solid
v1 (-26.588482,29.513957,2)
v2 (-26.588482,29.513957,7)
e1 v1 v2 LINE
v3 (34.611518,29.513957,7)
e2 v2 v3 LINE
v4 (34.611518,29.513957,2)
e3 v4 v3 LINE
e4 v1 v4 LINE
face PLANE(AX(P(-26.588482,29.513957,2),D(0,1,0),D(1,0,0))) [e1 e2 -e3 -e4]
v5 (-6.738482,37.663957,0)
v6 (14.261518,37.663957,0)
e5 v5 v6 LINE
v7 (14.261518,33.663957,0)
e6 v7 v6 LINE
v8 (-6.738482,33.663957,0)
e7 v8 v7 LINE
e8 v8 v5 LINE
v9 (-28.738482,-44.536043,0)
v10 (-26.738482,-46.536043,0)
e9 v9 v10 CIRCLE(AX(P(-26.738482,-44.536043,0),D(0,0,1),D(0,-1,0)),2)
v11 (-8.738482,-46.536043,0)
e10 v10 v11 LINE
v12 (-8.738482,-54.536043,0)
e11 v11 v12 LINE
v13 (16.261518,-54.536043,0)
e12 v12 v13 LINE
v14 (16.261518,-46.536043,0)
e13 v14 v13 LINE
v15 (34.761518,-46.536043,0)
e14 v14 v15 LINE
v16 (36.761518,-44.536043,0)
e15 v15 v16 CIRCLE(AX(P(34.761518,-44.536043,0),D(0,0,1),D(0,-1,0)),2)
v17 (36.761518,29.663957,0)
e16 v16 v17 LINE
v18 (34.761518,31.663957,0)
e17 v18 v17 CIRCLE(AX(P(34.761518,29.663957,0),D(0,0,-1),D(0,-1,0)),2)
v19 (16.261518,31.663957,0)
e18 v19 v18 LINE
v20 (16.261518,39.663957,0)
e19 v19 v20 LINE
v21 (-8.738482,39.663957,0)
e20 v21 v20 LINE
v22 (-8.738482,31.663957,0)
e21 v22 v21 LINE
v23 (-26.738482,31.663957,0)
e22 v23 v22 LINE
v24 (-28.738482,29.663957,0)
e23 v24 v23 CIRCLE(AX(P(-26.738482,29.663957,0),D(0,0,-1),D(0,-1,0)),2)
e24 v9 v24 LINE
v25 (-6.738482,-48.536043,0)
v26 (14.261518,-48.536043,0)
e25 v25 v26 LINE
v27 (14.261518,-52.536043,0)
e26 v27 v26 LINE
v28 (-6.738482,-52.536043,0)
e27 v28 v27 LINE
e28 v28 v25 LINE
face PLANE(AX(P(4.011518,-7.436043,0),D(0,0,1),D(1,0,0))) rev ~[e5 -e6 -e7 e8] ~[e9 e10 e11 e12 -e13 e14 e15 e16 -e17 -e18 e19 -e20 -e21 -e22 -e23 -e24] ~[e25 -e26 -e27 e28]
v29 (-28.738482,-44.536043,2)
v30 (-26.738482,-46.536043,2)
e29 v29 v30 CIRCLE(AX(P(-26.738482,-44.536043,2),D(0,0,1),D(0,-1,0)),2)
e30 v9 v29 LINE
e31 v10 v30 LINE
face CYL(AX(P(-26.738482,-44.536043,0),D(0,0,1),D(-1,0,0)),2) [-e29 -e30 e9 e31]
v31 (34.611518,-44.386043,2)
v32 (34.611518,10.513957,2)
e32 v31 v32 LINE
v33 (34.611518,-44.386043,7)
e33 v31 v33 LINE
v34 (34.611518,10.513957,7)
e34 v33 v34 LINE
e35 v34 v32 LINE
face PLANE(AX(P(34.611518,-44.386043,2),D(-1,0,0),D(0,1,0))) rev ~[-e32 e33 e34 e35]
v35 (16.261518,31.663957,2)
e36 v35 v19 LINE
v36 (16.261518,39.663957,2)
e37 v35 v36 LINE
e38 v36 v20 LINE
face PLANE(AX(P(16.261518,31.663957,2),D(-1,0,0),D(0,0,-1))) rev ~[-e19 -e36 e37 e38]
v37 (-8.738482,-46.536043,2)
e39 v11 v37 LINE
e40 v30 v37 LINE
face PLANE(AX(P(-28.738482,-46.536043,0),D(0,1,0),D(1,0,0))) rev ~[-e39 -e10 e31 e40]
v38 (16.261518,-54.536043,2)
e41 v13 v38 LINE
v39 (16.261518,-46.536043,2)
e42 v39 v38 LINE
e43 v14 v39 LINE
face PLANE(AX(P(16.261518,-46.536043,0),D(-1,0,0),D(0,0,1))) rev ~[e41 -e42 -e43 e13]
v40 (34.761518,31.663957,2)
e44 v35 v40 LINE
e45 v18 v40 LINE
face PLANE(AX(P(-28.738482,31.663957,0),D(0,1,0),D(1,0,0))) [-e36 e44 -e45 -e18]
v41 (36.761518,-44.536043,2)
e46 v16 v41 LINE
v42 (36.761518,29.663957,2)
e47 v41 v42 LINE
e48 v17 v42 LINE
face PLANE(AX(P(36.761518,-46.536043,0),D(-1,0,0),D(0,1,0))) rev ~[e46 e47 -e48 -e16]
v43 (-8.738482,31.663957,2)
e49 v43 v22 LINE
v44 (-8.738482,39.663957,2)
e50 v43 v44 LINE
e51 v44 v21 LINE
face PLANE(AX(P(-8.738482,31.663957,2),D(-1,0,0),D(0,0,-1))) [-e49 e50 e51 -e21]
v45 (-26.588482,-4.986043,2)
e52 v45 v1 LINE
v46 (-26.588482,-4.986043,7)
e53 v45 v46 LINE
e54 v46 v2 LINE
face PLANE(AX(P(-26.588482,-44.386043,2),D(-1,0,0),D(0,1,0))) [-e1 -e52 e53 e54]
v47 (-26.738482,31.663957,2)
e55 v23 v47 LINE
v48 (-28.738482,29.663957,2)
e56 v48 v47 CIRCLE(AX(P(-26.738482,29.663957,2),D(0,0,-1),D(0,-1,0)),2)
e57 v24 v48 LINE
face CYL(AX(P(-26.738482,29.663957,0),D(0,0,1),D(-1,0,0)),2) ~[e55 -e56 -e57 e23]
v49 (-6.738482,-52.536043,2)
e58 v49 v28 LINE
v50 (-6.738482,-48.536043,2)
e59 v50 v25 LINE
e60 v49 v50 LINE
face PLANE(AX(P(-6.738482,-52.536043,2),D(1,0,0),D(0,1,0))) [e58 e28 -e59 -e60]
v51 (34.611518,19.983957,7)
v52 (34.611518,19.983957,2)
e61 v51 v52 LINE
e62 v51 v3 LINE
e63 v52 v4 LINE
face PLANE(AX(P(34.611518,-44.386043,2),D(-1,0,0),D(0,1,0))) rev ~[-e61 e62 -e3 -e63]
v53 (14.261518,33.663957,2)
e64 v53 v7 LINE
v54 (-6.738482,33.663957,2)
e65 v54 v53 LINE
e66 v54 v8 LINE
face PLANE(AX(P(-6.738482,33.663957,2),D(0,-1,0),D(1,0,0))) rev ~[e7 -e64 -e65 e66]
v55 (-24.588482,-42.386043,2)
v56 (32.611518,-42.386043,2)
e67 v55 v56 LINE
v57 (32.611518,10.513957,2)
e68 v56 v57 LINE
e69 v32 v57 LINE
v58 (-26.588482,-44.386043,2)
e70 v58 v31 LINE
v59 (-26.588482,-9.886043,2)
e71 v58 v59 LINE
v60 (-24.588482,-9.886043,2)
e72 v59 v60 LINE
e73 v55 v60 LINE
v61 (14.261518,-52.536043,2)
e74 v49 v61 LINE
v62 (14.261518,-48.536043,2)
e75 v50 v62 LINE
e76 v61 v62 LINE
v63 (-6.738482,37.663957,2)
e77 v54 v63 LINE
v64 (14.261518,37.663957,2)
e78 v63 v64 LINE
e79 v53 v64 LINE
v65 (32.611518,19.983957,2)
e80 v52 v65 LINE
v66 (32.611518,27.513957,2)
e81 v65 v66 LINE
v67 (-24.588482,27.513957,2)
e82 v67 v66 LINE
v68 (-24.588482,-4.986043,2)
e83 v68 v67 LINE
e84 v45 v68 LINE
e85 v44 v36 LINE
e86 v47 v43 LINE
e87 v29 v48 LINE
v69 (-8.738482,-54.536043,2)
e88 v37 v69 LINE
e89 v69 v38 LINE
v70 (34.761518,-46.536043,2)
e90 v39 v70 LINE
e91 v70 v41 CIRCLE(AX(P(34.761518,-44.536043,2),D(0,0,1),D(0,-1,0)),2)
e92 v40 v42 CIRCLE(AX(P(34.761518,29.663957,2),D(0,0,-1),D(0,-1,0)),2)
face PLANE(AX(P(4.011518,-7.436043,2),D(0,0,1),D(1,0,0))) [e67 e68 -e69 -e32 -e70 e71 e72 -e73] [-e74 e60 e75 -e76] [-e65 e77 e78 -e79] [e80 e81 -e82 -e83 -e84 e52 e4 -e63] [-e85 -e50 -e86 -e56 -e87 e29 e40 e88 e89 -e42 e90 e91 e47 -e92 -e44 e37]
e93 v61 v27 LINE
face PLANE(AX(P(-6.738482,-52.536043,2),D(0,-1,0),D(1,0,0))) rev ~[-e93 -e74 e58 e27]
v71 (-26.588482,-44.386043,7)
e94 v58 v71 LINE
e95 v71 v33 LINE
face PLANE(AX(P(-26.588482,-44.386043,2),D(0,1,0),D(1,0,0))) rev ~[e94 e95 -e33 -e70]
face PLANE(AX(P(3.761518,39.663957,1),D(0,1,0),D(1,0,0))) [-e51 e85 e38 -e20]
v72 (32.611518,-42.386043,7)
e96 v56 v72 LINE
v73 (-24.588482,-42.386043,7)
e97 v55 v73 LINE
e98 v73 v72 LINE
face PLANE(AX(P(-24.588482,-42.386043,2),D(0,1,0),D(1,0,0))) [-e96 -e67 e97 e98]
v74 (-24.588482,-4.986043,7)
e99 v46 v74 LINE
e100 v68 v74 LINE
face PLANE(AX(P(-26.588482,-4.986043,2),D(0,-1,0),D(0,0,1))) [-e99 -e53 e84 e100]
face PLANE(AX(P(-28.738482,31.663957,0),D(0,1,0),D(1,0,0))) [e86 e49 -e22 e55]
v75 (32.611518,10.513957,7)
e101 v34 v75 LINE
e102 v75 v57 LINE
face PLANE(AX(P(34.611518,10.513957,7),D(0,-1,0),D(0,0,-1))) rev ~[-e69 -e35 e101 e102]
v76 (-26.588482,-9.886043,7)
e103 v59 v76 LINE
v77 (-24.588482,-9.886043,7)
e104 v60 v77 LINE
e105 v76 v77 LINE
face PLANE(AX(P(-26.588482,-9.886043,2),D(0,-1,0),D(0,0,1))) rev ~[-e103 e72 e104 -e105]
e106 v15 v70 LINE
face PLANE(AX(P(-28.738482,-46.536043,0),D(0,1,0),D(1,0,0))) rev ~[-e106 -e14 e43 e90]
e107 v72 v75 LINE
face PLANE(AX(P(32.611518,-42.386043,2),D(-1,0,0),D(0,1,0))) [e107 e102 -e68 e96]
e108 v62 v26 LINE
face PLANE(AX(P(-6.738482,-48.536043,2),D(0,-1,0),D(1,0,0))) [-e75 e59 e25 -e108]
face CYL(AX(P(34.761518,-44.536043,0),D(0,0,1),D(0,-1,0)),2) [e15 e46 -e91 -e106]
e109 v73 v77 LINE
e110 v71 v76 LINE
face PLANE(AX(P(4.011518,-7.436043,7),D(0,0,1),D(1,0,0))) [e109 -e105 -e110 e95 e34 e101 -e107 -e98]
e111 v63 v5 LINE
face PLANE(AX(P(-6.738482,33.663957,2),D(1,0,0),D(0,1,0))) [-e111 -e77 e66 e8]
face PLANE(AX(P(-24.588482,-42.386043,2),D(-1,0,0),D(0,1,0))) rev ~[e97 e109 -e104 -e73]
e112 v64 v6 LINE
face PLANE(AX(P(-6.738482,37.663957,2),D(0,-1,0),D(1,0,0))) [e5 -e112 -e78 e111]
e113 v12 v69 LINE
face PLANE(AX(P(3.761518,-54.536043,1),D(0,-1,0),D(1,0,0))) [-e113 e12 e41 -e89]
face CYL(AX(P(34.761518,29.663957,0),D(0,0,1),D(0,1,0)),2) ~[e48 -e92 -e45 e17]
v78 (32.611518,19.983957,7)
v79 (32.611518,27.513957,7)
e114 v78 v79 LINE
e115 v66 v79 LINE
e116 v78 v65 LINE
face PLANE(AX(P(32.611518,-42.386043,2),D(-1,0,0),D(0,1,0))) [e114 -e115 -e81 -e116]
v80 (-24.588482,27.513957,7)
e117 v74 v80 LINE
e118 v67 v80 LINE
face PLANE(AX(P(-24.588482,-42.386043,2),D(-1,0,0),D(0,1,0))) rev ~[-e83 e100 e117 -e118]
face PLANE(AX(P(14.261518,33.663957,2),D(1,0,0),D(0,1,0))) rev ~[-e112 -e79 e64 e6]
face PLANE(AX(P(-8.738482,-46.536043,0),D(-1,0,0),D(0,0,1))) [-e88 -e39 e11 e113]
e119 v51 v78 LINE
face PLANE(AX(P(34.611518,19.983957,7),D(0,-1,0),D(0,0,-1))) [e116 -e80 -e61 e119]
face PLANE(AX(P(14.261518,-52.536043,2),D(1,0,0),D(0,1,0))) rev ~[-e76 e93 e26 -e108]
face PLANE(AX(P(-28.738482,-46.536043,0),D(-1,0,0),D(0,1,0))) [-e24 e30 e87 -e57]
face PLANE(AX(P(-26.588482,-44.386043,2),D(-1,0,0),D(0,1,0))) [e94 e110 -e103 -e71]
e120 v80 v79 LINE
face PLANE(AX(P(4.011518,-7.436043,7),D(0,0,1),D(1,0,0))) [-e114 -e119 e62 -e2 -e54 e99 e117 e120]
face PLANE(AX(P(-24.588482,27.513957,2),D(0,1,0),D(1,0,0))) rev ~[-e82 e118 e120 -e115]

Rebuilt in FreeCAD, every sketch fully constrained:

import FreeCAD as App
import Part
import Sketcher
from FreeCAD import Vector
Q = App.Units.Quantity


def edges_at(feature, points):
    """Names of the edges that pass closest to the given points."""
    edges = feature.Shape.Edges
    near = lambda p: min(range(len(edges)), key=lambda i: edges[i].distToShape(Part.Vertex(*p))[0])
    return sorted({f"Edge{near(p) + 1}" for p in points})

doc = App.newDocument("Part")
params = doc.addObject("Spreadsheet::Sheet", "Params")
for row, (alias, value) in enumerate([
    ("sketch1_width", "65.5 mm"),
    ("sketch1_height", "78.2 mm"),
    ("pad1_length", "2 mm"),
    ("sketch2_width", "61.2 mm"),
    ("sketch2_width2", "57.2 mm"),
    ("sketch2_height", "73.9 mm"),
    ("sketch2_height2", "69.9 mm"),
    ("pad2_length", "5 mm"),
    ("sketch3_height", "5 mm"),
    ("sketch3_width", "9.47 mm"),
    ("pocket1_length", "2 mm"),
    ("sketch4_height", "5 mm"),
    ("sketch4_width", "4.9 mm"),
    ("pocket2_length", "2 mm"),
    ("fillet_radius", "2 mm"),
    ("sketch5_width", "25 mm"),
    ("sketch5_height", "2 mm"),
    ("pad3_length", "8 mm"),
    ("sketch6_width", "25 mm"),
    ("sketch6_height", "2 mm"),
    ("pad4_length", "8 mm"),
    ("sketch7_width", "21 mm"),
    ("sketch7_height", "4 mm"),
], start=1):
    params.set(f"A{row}", alias)
    params.set(f"B{row}", "=" + value)
    params.setAlias(f"B{row}", alias)

body = doc.addObject("PartDesign::Body", "Body")

sketch1 = body.newObject("Sketcher::SketchObject", "Sketch")
sketch1.AttachmentSupport = (doc.getObject("XY_Plane"), [""])
sketch1.MapMode = "FlatFace"
sketch1.addGeometry(Part.LineSegment(Vector(-29, 32, 0), Vector(-29, -47, 0)), False)
sketch1.addGeometry(Part.LineSegment(Vector(-29, -47, 0), Vector(37, -47, 0)), False)
sketch1.addGeometry(Part.LineSegment(Vector(37, -47, 0), Vector(37, 32, 0)), False)
sketch1.addGeometry(Part.LineSegment(Vector(37, 32, 0), Vector(-29, 32, 0)), False)
sketch1.addConstraint(Sketcher.Constraint("Coincident", 0, 2, 1, 1))
sketch1.addConstraint(Sketcher.Constraint("Coincident", 1, 2, 2, 1))
sketch1.addConstraint(Sketcher.Constraint("Coincident", 2, 2, 3, 1))
sketch1.addConstraint(Sketcher.Constraint("Coincident", 3, 2, 0, 1))
sketch1.addConstraint(Sketcher.Constraint("Vertical", 0))
sketch1.addConstraint(Sketcher.Constraint("Horizontal", 1))
sketch1.addConstraint(Sketcher.Constraint("Vertical", 2))
sketch1.addConstraint(Sketcher.Constraint("Horizontal", 3))
sketch1.addConstraint(Sketcher.Constraint("DistanceX", 1, 1, 1, 2, Q("65.5 mm")))
sketch1.addConstraint(Sketcher.Constraint("DistanceY", 0, 2, 0, 1, Q("78.2 mm")))
sketch1.addConstraint(Sketcher.Constraint("DistanceX", 0, 2, -1, 1, Q("28.738482 mm")))
sketch1.addConstraint(Sketcher.Constraint("DistanceY", 0, 2, -1, 1, Q("46.536043 mm")))
sketch1.setExpression("Constraints[8]", "Params.sketch1_width")
sketch1.setExpression("Constraints[9]", "Params.sketch1_height")
pad1 = body.newObject("PartDesign::Pad", "Pad")
pad1.Profile = sketch1
pad1.setExpression("Length", "Params.pad1_length")

sketch2 = body.newObject("Sketcher::SketchObject", "Sketch001")
sketch2.AttachmentSupport = (doc.getObject("XY_Plane"), [""])
sketch2.MapMode = "FlatFace"
sketch2.AttachmentOffset = App.Placement(Vector(0, 0, 2), App.Rotation())
sketch2.addGeometry(Part.LineSegment(Vector(-27, 30, 0), Vector(-27, -44, 0)), False)
sketch2.addGeometry(Part.LineSegment(Vector(-27, -44, 0), Vector(35, -44, 0)), False)
sketch2.addGeometry(Part.LineSegment(Vector(35, -44, 0), Vector(35, 30, 0)), False)
sketch2.addGeometry(Part.LineSegment(Vector(35, 30, 0), Vector(-27, 30, 0)), False)
sketch2.addGeometry(Part.LineSegment(Vector(33, -42, 0), Vector(-25, -42, 0)), False)
sketch2.addGeometry(Part.LineSegment(Vector(-25, -42, 0), Vector(-25, 28, 0)), False)
sketch2.addGeometry(Part.LineSegment(Vector(-25, 28, 0), Vector(33, 28, 0)), False)
sketch2.addGeometry(Part.LineSegment(Vector(33, 28, 0), Vector(33, -42, 0)), False)
sketch2.addConstraint(Sketcher.Constraint("Coincident", 0, 2, 1, 1))
sketch2.addConstraint(Sketcher.Constraint("Coincident", 1, 2, 2, 1))
sketch2.addConstraint(Sketcher.Constraint("Coincident", 2, 2, 3, 1))
sketch2.addConstraint(Sketcher.Constraint("Coincident", 3, 2, 0, 1))
sketch2.addConstraint(Sketcher.Constraint("Coincident", 4, 2, 5, 1))
sketch2.addConstraint(Sketcher.Constraint("Coincident", 5, 2, 6, 1))
sketch2.addConstraint(Sketcher.Constraint("Coincident", 6, 2, 7, 1))
sketch2.addConstraint(Sketcher.Constraint("Coincident", 7, 2, 4, 1))
sketch2.addConstraint(Sketcher.Constraint("Vertical", 0))
sketch2.addConstraint(Sketcher.Constraint("Horizontal", 1))
sketch2.addConstraint(Sketcher.Constraint("Vertical", 2))
sketch2.addConstraint(Sketcher.Constraint("Horizontal", 3))
sketch2.addConstraint(Sketcher.Constraint("Horizontal", 4))
sketch2.addConstraint(Sketcher.Constraint("Vertical", 5))
sketch2.addConstraint(Sketcher.Constraint("Horizontal", 6))
sketch2.addConstraint(Sketcher.Constraint("Vertical", 7))
sketch2.addConstraint(Sketcher.Constraint("DistanceX", 1, 1, 1, 2, Q("61.2 mm")))
sketch2.addConstraint(Sketcher.Constraint("DistanceX", 4, 2, 4, 1, Q("57.2 mm")))
sketch2.addConstraint(Sketcher.Constraint("DistanceY", 0, 2, 0, 1, Q("73.9 mm")))
sketch2.addConstraint(Sketcher.Constraint("DistanceY", 5, 1, 5, 2, Q("69.9 mm")))
sketch2.addConstraint(Sketcher.Constraint("DistanceX", 0, 2, 4, 2, Q("2 mm")))
sketch2.addConstraint(Sketcher.Constraint("DistanceY", 0, 2, 4, 2, Q("2 mm")))
sketch2.addConstraint(Sketcher.Constraint("DistanceX", 0, 2, -1, 1, Q("26.588482 mm")))
sketch2.addConstraint(Sketcher.Constraint("DistanceY", 0, 2, -1, 1, Q("44.386043 mm")))
sketch2.setExpression("Constraints[16]", "Params.sketch2_width")
sketch2.setExpression("Constraints[17]", "Params.sketch2_width2")
sketch2.setExpression("Constraints[18]", "Params.sketch2_height")
sketch2.setExpression("Constraints[19]", "Params.sketch2_height2")
pad2 = body.newObject("PartDesign::Pad", "Pad001")
pad2.Profile = sketch2
pad2.setExpression("Length", "Params.pad2_length")

sketch3 = body.newObject("Sketcher::SketchObject", "Sketch002")
sketch3.AttachmentSupport = (doc.getObject("YZ_Plane"), [""])
sketch3.MapMode = "FlatFace"
sketch3.AttachmentOffset = App.Placement(Vector(0, 0, 34.611518), App.Rotation())
sketch3.addGeometry(Part.LineSegment(Vector(20, 7, 0), Vector(11, 7, 0)), False)
sketch3.addGeometry(Part.LineSegment(Vector(11, 7, 0), Vector(11, 2, 0)), False)
sketch3.addGeometry(Part.LineSegment(Vector(11, 2, 0), Vector(20, 2, 0)), False)
sketch3.addGeometry(Part.LineSegment(Vector(20, 2, 0), Vector(20, 7, 0)), False)
sketch3.addConstraint(Sketcher.Constraint("Coincident", 0, 2, 1, 1))
sketch3.addConstraint(Sketcher.Constraint("Coincident", 1, 2, 2, 1))
sketch3.addConstraint(Sketcher.Constraint("Coincident", 2, 2, 3, 1))
sketch3.addConstraint(Sketcher.Constraint("Coincident", 3, 2, 0, 1))
sketch3.addConstraint(Sketcher.Constraint("Horizontal", 0))
sketch3.addConstraint(Sketcher.Constraint("Vertical", 1))
sketch3.addConstraint(Sketcher.Constraint("Horizontal", 2))
sketch3.addConstraint(Sketcher.Constraint("Vertical", 3))
sketch3.addConstraint(Sketcher.Constraint("DistanceY", 1, 2, 1, 1, Q("5 mm")))
sketch3.addConstraint(Sketcher.Constraint("DistanceY", -1, 1, 0, 2, Q("7 mm")))
sketch3.addConstraint(Sketcher.Constraint("DistanceX", 0, 2, 0, 1, Q("9.47 mm")))
sketch3.addConstraint(Sketcher.Constraint("DistanceX", -1, 1, 0, 2, Q("10.513957 mm")))
sketch3.setExpression("Constraints[8]", "Params.sketch3_height")
sketch3.setExpression("Constraints[10]", "Params.sketch3_width")
pocket1 = body.newObject("PartDesign::Pocket", "Pocket")
pocket1.Profile = sketch3
pocket1.setExpression("Length", "Params.pocket1_length")

sketch4 = body.newObject("Sketcher::SketchObject", "Sketch003")
sketch4.AttachmentSupport = (doc.getObject("YZ_Plane"), [""])
sketch4.MapMode = "FlatFace"
sketch4.AttachmentOffset = App.Placement(Vector(0, 0, -26.588482), App.Rotation())
sketch4.addGeometry(Part.LineSegment(Vector(-5, 2, 0), Vector(-9.9, 2, 0)), False)
sketch4.addGeometry(Part.LineSegment(Vector(-9.9, 2, 0), Vector(-9.9, 7, 0)), False)
sketch4.addGeometry(Part.LineSegment(Vector(-9.9, 7, 0), Vector(-5, 7, 0)), False)
sketch4.addGeometry(Part.LineSegment(Vector(-5, 7, 0), Vector(-5, 2, 0)), False)
sketch4.addConstraint(Sketcher.Constraint("Coincident", 0, 2, 1, 1))
sketch4.addConstraint(Sketcher.Constraint("Coincident", 1, 2, 2, 1))
sketch4.addConstraint(Sketcher.Constraint("Coincident", 2, 2, 3, 1))
sketch4.addConstraint(Sketcher.Constraint("Coincident", 3, 2, 0, 1))
sketch4.addConstraint(Sketcher.Constraint("Horizontal", 0))
sketch4.addConstraint(Sketcher.Constraint("Vertical", 1))
sketch4.addConstraint(Sketcher.Constraint("Horizontal", 2))
sketch4.addConstraint(Sketcher.Constraint("Vertical", 3))
sketch4.addConstraint(Sketcher.Constraint("DistanceY", 1, 1, 1, 2, Q("5 mm")))
sketch4.addConstraint(Sketcher.Constraint("DistanceX", 0, 2, 0, 1, Q("4.9 mm")))
sketch4.addConstraint(Sketcher.Constraint("DistanceY", -1, 1, 0, 2, Q("2 mm")))
sketch4.addConstraint(Sketcher.Constraint("DistanceX", 0, 2, -1, 1, Q("9.886043 mm")))
sketch4.setExpression("Constraints[8]", "Params.sketch4_height")
sketch4.setExpression("Constraints[9]", "Params.sketch4_width")
pocket2 = body.newObject("PartDesign::Pocket", "Pocket001")
pocket2.Profile = sketch4
pocket2.setExpression("Length", "Params.pocket2_length")
pocket2.Reversed = True
doc.recompute()

fillet = body.newObject("PartDesign::Fillet", "Fillet")
fillet.Base = (pocket2, edges_at(pocket2, [
    (-28.738, 31.664, 1),
    (36.762, 31.664, 1),
    (36.762, -46.536, 1),
    (-28.738, -46.536, 1),
]))
fillet.setExpression("Radius", "Params.fillet_radius")

sketch5 = body.newObject("Sketcher::SketchObject", "Sketch004")
sketch5.AttachmentSupport = (doc.getObject("XZ_Plane"), [""])
sketch5.MapMode = "FlatFace"
sketch5.AttachmentOffset = App.Placement(Vector(0, 0, -31.663957), App.Rotation())
sketch5.addGeometry(Part.LineSegment(Vector(-8.7, 0, 0), Vector(-8.7, 2, 0)), False)
sketch5.addGeometry(Part.LineSegment(Vector(-8.7, 2, 0), Vector(16.3, 2, 0)), False)
sketch5.addGeometry(Part.LineSegment(Vector(16.3, 2, 0), Vector(16.3, 0, 0)), False)
sketch5.addGeometry(Part.LineSegment(Vector(16.3, 0, 0), Vector(-8.7, 0, 0)), False)
sketch5.addConstraint(Sketcher.Constraint("Coincident", 0, 2, 1, 1))
sketch5.addConstraint(Sketcher.Constraint("Coincident", 1, 2, 2, 1))
sketch5.addConstraint(Sketcher.Constraint("Coincident", 2, 2, 3, 1))
sketch5.addConstraint(Sketcher.Constraint("Coincident", 3, 2, 0, 1))
sketch5.addConstraint(Sketcher.Constraint("Vertical", 0))
sketch5.addConstraint(Sketcher.Constraint("Horizontal", 1))
sketch5.addConstraint(Sketcher.Constraint("Vertical", 2))
sketch5.addConstraint(Sketcher.Constraint("Horizontal", 3))
sketch5.addConstraint(Sketcher.Constraint("PointOnObject", 2, 2, -1))
sketch5.addConstraint(Sketcher.Constraint("DistanceX", 1, 1, 1, 2, Q("25 mm")))
sketch5.addConstraint(Sketcher.Constraint("DistanceY", 0, 1, 0, 2, Q("2 mm")))
sketch5.addConstraint(Sketcher.Constraint("DistanceX", 0, 2, -1, 1, Q("8.738482 mm")))
sketch5.setExpression("Constraints[9]", "Params.sketch5_width")
sketch5.setExpression("Constraints[10]", "Params.sketch5_height")
pad3 = body.newObject("PartDesign::Pad", "Pad002")
pad3.Profile = sketch5
pad3.setExpression("Length", "Params.pad3_length")
pad3.Reversed = True

sketch6 = body.newObject("Sketcher::SketchObject", "Sketch005")
sketch6.AttachmentSupport = (doc.getObject("XZ_Plane"), [""])
sketch6.MapMode = "FlatFace"
sketch6.AttachmentOffset = App.Placement(Vector(0, 0, 46.536043), App.Rotation())
sketch6.addGeometry(Part.LineSegment(Vector(-8.7, 2, 0), Vector(-8.7, 0, 0)), False)
sketch6.addGeometry(Part.LineSegment(Vector(-8.7, 0, 0), Vector(16.3, 0, 0)), False)
sketch6.addGeometry(Part.LineSegment(Vector(16.3, 0, 0), Vector(16.3, 2, 0)), False)
sketch6.addGeometry(Part.LineSegment(Vector(16.3, 2, 0), Vector(-8.7, 2, 0)), False)
sketch6.addConstraint(Sketcher.Constraint("Coincident", 0, 2, 1, 1))
sketch6.addConstraint(Sketcher.Constraint("Coincident", 1, 2, 2, 1))
sketch6.addConstraint(Sketcher.Constraint("Coincident", 2, 2, 3, 1))
sketch6.addConstraint(Sketcher.Constraint("Coincident", 3, 2, 0, 1))
sketch6.addConstraint(Sketcher.Constraint("Vertical", 0))
sketch6.addConstraint(Sketcher.Constraint("Horizontal", 1))
sketch6.addConstraint(Sketcher.Constraint("Vertical", 2))
sketch6.addConstraint(Sketcher.Constraint("Horizontal", 3))
sketch6.addConstraint(Sketcher.Constraint("PointOnObject", 0, 2, -1))
sketch6.addConstraint(Sketcher.Constraint("DistanceX", 1, 1, 1, 2, Q("25 mm")))
sketch6.addConstraint(Sketcher.Constraint("DistanceY", 0, 2, 0, 1, Q("2 mm")))
sketch6.addConstraint(Sketcher.Constraint("DistanceX", 0, 2, -1, 1, Q("8.738482 mm")))
sketch6.setExpression("Constraints[9]", "Params.sketch6_width")
sketch6.setExpression("Constraints[10]", "Params.sketch6_height")
pad4 = body.newObject("PartDesign::Pad", "Pad003")
pad4.Profile = sketch6
pad4.setExpression("Length", "Params.pad4_length")

sketch7 = body.newObject("Sketcher::SketchObject", "Sketch006")
sketch7.AttachmentSupport = (doc.getObject("XY_Plane"), [""])
sketch7.MapMode = "FlatFace"
sketch7.AttachmentOffset = App.Placement(Vector(0, 0, 2), App.Rotation())
sketch7.addGeometry(Part.LineSegment(Vector(-6.7, -48.5, 0), Vector(-6.7, -52.5, 0)), False)
sketch7.addGeometry(Part.LineSegment(Vector(-6.7, -52.5, 0), Vector(14.3, -52.5, 0)), False)
sketch7.addGeometry(Part.LineSegment(Vector(14.3, -52.5, 0), Vector(14.3, -48.5, 0)), False)
sketch7.addGeometry(Part.LineSegment(Vector(14.3, -48.5, 0), Vector(-6.7, -48.5, 0)), False)
sketch7.addGeometry(Part.LineSegment(Vector(-6.7, 37.7, 0), Vector(-6.7, 33.7, 0)), False)
sketch7.addGeometry(Part.LineSegment(Vector(-6.7, 33.7, 0), Vector(14.3, 33.7, 0)), False)
sketch7.addGeometry(Part.LineSegment(Vector(14.3, 33.7, 0), Vector(14.3, 37.7, 0)), False)
sketch7.addGeometry(Part.LineSegment(Vector(14.3, 37.7, 0), Vector(-6.7, 37.7, 0)), False)
sketch7.addConstraint(Sketcher.Constraint("Coincident", 0, 2, 1, 1))
sketch7.addConstraint(Sketcher.Constraint("Coincident", 1, 2, 2, 1))
sketch7.addConstraint(Sketcher.Constraint("Coincident", 2, 2, 3, 1))
sketch7.addConstraint(Sketcher.Constraint("Coincident", 3, 2, 0, 1))
sketch7.addConstraint(Sketcher.Constraint("Coincident", 4, 2, 5, 1))
sketch7.addConstraint(Sketcher.Constraint("Coincident", 5, 2, 6, 1))
sketch7.addConstraint(Sketcher.Constraint("Coincident", 6, 2, 7, 1))
sketch7.addConstraint(Sketcher.Constraint("Coincident", 7, 2, 4, 1))
sketch7.addConstraint(Sketcher.Constraint("Vertical", 0))
sketch7.addConstraint(Sketcher.Constraint("Horizontal", 1))
sketch7.addConstraint(Sketcher.Constraint("Vertical", 2))
sketch7.addConstraint(Sketcher.Constraint("Horizontal", 3))
sketch7.addConstraint(Sketcher.Constraint("Vertical", 4))
sketch7.addConstraint(Sketcher.Constraint("Horizontal", 5))
sketch7.addConstraint(Sketcher.Constraint("Vertical", 6))
sketch7.addConstraint(Sketcher.Constraint("Horizontal", 7))
sketch7.addConstraint(Sketcher.Constraint("Vertical", 3, 2, 4, 2))
sketch7.addConstraint(Sketcher.Constraint("Vertical", 2, 2, 5, 2))
sketch7.addConstraint(Sketcher.Constraint("Equal", 2, 4))
sketch7.addConstraint(Sketcher.Constraint("DistanceX", 1, 1, 1, 2, Q("21 mm")))
sketch7.addConstraint(Sketcher.Constraint("DistanceY", 0, 2, 0, 1, Q("4 mm")))
sketch7.addConstraint(Sketcher.Constraint("DistanceY", 3, 2, 4, 2, Q("82.2 mm")))
sketch7.addConstraint(Sketcher.Constraint("DistanceX", 0, 2, -1, 1, Q("6.738482 mm")))
sketch7.addConstraint(Sketcher.Constraint("DistanceY", 0, 2, -1, 1, Q("52.536043 mm")))
sketch7.setExpression("Constraints[19]", "Params.sketch7_width")
sketch7.setExpression("Constraints[20]", "Params.sketch7_height")
pocket3 = body.newObject("PartDesign::Pocket", "Pocket002")
pocket3.Profile = sketch7
pocket3.Type = "ThroughAll"

doc.recompute()
